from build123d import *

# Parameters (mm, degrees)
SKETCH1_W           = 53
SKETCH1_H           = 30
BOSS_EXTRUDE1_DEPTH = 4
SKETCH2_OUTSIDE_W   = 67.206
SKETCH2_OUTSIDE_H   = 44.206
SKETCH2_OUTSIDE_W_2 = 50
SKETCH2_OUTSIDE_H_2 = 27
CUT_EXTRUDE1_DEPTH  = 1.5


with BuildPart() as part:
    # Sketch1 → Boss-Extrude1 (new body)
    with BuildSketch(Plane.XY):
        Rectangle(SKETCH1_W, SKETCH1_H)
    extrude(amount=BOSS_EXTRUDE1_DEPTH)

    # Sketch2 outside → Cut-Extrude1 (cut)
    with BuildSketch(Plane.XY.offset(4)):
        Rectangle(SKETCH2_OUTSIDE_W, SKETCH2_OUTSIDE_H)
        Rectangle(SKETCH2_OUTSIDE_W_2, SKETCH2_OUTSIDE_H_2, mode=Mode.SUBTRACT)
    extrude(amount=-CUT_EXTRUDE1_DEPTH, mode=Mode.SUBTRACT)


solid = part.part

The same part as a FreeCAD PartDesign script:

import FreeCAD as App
import Part
import Sketcher

V = App.Vector

doc = App.newDocument("Part")
body = doc.addObject("PartDesign::Body", "Body")

# Sketch on XY plane
sketch1 = body.newObject("Sketcher::SketchObject", "Sketch")
sketch1.AttachmentSupport = (doc.getObject("XY_Plane"), [""])
sketch1.MapMode = "FlatFace"
sketch1.addGeometry([
    Part.LineSegment(V(-26, 15, 0), V(-26, -15, 0)),
    Part.LineSegment(V(-26, -15, 0), V(26, -15, 0)),
    Part.LineSegment(V(26, -15, 0), V(26, 15, 0)),
    Part.LineSegment(V(26, 15, 0), V(-26, 15, 0)),
], False)
sketch1.addConstraint([
    Sketcher.Constraint("Coincident", 0, 2, 1, 1),
    Sketcher.Constraint("Coincident", 1, 2, 2, 1),
    Sketcher.Constraint("Coincident", 2, 2, 3, 1),
    Sketcher.Constraint("Coincident", 3, 2, 0, 1),
    Sketcher.Constraint("Vertical", 0),
    Sketcher.Constraint("Horizontal", 1),
    Sketcher.Constraint("Vertical", 2),
    Sketcher.Constraint("Horizontal", 3),
    Sketcher.Constraint("Symmetric", 0, 2, 2, 2, -1, 1),
    Sketcher.Constraint("DistanceX", 1, 1, 1, 2, 53.0),
    Sketcher.Constraint("DistanceY", 0, 2, 0, 1, 30.0),
])
pad1 = body.newObject("PartDesign::Pad", "Pad")
pad1.Profile = sketch1
pad1.Length = 4

# Sketch on XY plane
sketch2 = body.newObject("Sketcher::SketchObject", "Sketch001")
sketch2.AttachmentSupport = (doc.getObject("XY_Plane"), [""])
sketch2.MapMode = "FlatFace"
sketch2.AttachmentOffset = App.Placement(V(0, 0, 4), App.Rotation())
sketch2.addGeometry([
    Part.LineSegment(V(-34, 22, 0), V(-34, -22, 0)),  # 0
    Part.LineSegment(V(-34, -22, 0), V(34, -22, 0)),  # 1
    Part.LineSegment(V(34, -22, 0), V(34, 22, 0)),  # 2
    Part.LineSegment(V(34, 22, 0), V(-34, 22, 0)),  # 3
    Part.LineSegment(V(25, -14, 0), V(-25, -14, 0)),  # 4
    Part.LineSegment(V(-25, -14, 0), V(-25, 14, 0)),  # 5
    Part.LineSegment(V(-25, 14, 0), V(25, 14, 0)),  # 6
    Part.LineSegment(V(25, 14, 0), V(25, -14, 0)),  # 7
], False)
sketch2.addConstraint([
    Sketcher.Constraint("Coincident", 0, 2, 1, 1),
    Sketcher.Constraint("Coincident", 1, 2, 2, 1),
    Sketcher.Constraint("Coincident", 2, 2, 3, 1),
    Sketcher.Constraint("Coincident", 3, 2, 0, 1),
    Sketcher.Constraint("Coincident", 4, 2, 5, 1),
    Sketcher.Constraint("Coincident", 5, 2, 6, 1),
    Sketcher.Constraint("Coincident", 6, 2, 7, 1),
    Sketcher.Constraint("Coincident", 7, 2, 4, 1),
    Sketcher.Constraint("Vertical", 0),
    Sketcher.Constraint("Horizontal", 1),
    Sketcher.Constraint("Vertical", 2),
    Sketcher.Constraint("Horizontal", 3),
    Sketcher.Constraint("Horizontal", 4),
    Sketcher.Constraint("Vertical", 5),
    Sketcher.Constraint("Horizontal", 6),
    Sketcher.Constraint("Vertical", 7),
    Sketcher.Constraint("Symmetric", 0, 2, 2, 2, -1, 1),
    Sketcher.Constraint("Symmetric", 4, 2, 6, 2, -1, 1),
    Sketcher.Constraint("DistanceX", 4, 2, 4, 1, 50.0),
    Sketcher.Constraint("DistanceY", 5, 1, 5, 2, 27.0),
    Sketcher.Constraint("DistanceX", 1, 1, 1, 2, 67.206),
    Sketcher.Constraint("DistanceY", 0, 2, 0, 1, 44.206),
])
pocket1 = body.newObject("PartDesign::Pocket", "Pocket")
pocket1.Profile = sketch2
pocket1.Length = 1.5

doc.recompute()
